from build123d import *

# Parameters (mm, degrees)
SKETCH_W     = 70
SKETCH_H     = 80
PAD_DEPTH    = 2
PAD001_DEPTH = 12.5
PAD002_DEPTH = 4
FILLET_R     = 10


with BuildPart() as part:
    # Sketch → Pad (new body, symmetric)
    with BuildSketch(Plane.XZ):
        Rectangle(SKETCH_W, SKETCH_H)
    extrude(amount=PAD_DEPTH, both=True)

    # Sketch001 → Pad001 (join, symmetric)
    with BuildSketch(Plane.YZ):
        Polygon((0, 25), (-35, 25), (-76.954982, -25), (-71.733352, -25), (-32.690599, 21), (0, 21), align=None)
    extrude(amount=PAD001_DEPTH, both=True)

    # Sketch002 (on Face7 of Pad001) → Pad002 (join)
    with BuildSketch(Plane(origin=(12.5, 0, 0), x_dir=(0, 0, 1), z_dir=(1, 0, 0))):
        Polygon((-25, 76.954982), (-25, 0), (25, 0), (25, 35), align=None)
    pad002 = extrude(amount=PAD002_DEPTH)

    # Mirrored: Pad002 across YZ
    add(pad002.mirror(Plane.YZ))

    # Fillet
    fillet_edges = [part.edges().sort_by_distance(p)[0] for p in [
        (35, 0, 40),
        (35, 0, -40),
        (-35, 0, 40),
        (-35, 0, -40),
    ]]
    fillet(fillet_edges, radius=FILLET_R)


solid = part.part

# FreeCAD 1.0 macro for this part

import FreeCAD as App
import Part
import Sketcher
Q = App.Units.Quantity


def edges_at(feature, points):
    """Names of the edges that pass closest to the given points."""
    edges = feature.Shape.Edges
    near = lambda p: min(range(len(edges)), key=lambda i: edges[i].distToShape(Part.Vertex(*p))[0])
    return sorted({f"Edge{near(p) + 1}" for p in points})

doc = App.newDocument("Part")
body = doc.addObject("PartDesign::Body", "Body")

# Sketch on XZ plane
sketch1 = body.newObject("Sketcher::SketchObject", "Sketch")
sketch1.AttachmentSupport = (doc.getObject("XZ_Plane"), [""])
sketch1.MapMode = "FlatFace"
sketch1.addGeometry([
    Part.LineSegment(App.Vector(-35, 40, 0), App.Vector(-35, -40, 0)),
    Part.LineSegment(App.Vector(-35, -40, 0), App.Vector(35, -40, 0)),
    Part.LineSegment(App.Vector(35, -40, 0), App.Vector(35, 40, 0)),
    Part.LineSegment(App.Vector(35, 40, 0), App.Vector(-35, 40, 0)),
], False)
sketch1.addConstraint([
    Sketcher.Constraint("Coincident", 0, 2, 1, 1),
    Sketcher.Constraint("Coincident", 1, 2, 2, 1),
    Sketcher.Constraint("Coincident", 2, 2, 3, 1),
    Sketcher.Constraint("Coincident", 3, 2, 0, 1),
    Sketcher.Constraint("Vertical", 0),
    Sketcher.Constraint("Horizontal", 1),
    Sketcher.Constraint("Vertical", 2),
    Sketcher.Constraint("Horizontal", 3),
    Sketcher.Constraint("Symmetric", 0, 2, 2, 2, -1, 1),
    Sketcher.Constraint("DistanceX", 1, 1, 1, 2, 70.0),
    Sketcher.Constraint("DistanceY", 0, 2, 0, 1, 80.0),
])
pad1 = body.newObject("PartDesign::Pad", "Pad")
pad1.Profile = sketch1
pad1.Length = 4
pad1.Midplane = True

# Sketch on YZ plane
sketch2 = body.newObject("Sketcher::SketchObject", "Sketch001")
sketch2.AttachmentSupport = (doc.getObject("YZ_Plane"), [""])
sketch2.MapMode = "FlatFace"
sketch2.addGeometry([
    Part.LineSegment(App.Vector(0, 25, 0), App.Vector(-35, 25, 0)),  # 0
    Part.LineSegment(App.Vector(-35, 25, 0), App.Vector(-77, -25, 0)),  # 1
    Part.LineSegment(App.Vector(-77, -25, 0), App.Vector(-71.7, -25, 0)),  # 2
    Part.LineSegment(App.Vector(-71.7, -25, 0), App.Vector(-32.7, 21, 0)),  # 3
    Part.LineSegment(App.Vector(-32.7, 21, 0), App.Vector(0, 21, 0)),  # 4
    Part.LineSegment(App.Vector(0, 21, 0), App.Vector(0, 25, 0)),  # 5
], False)
sketch2.addConstraint([
    Sketcher.Constraint("Coincident", 0, 2, 1, 1),
    Sketcher.Constraint("Coincident", 1, 2, 2, 1),
    Sketcher.Constraint("Coincident", 2, 2, 3, 1),
    Sketcher.Constraint("Coincident", 3, 2, 4, 1),
    Sketcher.Constraint("Coincident", 4, 2, 5, 1),
    Sketcher.Constraint("Coincident", 5, 2, 0, 1),
    Sketcher.Constraint("Horizontal", 0),
    Sketcher.Constraint("Horizontal", 2),
    Sketcher.Constraint("Horizontal", 4),
    Sketcher.Constraint("Vertical", 5),
    Sketcher.Constraint("PointOnObject", 4, 2, -2),
    Sketcher.Constraint("DistanceX", 0, 2, 0, 1, 35.0),
    Sketcher.Constraint("DistanceY", 5, 1, 5, 2, 4.0),
    Sketcher.Constraint("Angle", 1, Q("-130 deg")),
    Sketcher.Constraint("DistanceY", -1, 1, 0, 2, 25.0),
    Sketcher.Constraint("DistanceY", 1, 2, -1, 1, 25.0),
    Sketcher.Constraint("DistanceX", 4, 1, 4, 2, 32.690599),
    Sketcher.Constraint("Distance", 3, 60.335202),
])
pad2 = body.newObject("PartDesign::Pad", "Pad001")
pad2.Profile = sketch2
pad2.Length = 25
pad2.Midplane = True

# Sketch on YZ plane
sketch3 = body.newObject("Sketcher::SketchObject", "Sketch002")
sketch3.AttachmentSupport = (doc.getObject("YZ_Plane"), [""])
sketch3.MapMode = "FlatFace"
sketch3.AttachmentOffset = App.Placement(App.Vector(0, 0, 12.5), App.Rotation())
sketch3.addGeometry([
    Part.LineSegment(App.Vector(-77, -25, 0), App.Vector(0, -25, 0)),
    Part.LineSegment(App.Vector(0, -25, 0), App.Vector(0, 25, 0)),
    Part.LineSegment(App.Vector(0, 25, 0), App.Vector(-35, 25, 0)),
    Part.LineSegment(App.Vector(-35, 25, 0), App.Vector(-77, -25, 0)),
], False)
sketch3.addConstraint([
    Sketcher.Constraint("Coincident", 0, 2, 1, 1),
    Sketcher.Constraint("Coincident", 1, 2, 2, 1),
    Sketcher.Constraint("Coincident", 2, 2, 3, 1),
    Sketcher.Constraint("Coincident", 3, 2, 0, 1),
    Sketcher.Constraint("Horizontal", 0),
    Sketcher.Constraint("Vertical", 1),
    Sketcher.Constraint("Horizontal", 2),
    Sketcher.Constraint("Symmetric", 0, 2, 1, 2, -1, 1),
    Sketcher.Constraint("DistanceX", 2, 2, 2, 1, 35.0),
    Sketcher.Constraint("DistanceY", 1, 1, 1, 2, 50.0),
    Sketcher.Constraint("Angle", 3, Q("-130 deg")),
])
pad3 = body.newObject("PartDesign::Pad", "Pad002")
pad3.Profile = sketch3
pad3.Length = 4
doc.recompute()

mirrored = body.newObject("PartDesign::Mirrored", "Mirrored")
mirrored.Originals = [pad3]
mirrored.MirrorPlane = (doc.getObject("YZ_Plane"), [""])
body.Tip = mirrored
doc.recompute()

fillet = body.newObject("PartDesign::Fillet", "Fillet")
fillet.Base = (mirrored, edges_at(mirrored, [
    (35, 0, 40),
    (35, 0, -40),
    (-35, 0, 40),
    (-35, 0, -40),
]))
fillet.Radius = 10

doc.recompute()
